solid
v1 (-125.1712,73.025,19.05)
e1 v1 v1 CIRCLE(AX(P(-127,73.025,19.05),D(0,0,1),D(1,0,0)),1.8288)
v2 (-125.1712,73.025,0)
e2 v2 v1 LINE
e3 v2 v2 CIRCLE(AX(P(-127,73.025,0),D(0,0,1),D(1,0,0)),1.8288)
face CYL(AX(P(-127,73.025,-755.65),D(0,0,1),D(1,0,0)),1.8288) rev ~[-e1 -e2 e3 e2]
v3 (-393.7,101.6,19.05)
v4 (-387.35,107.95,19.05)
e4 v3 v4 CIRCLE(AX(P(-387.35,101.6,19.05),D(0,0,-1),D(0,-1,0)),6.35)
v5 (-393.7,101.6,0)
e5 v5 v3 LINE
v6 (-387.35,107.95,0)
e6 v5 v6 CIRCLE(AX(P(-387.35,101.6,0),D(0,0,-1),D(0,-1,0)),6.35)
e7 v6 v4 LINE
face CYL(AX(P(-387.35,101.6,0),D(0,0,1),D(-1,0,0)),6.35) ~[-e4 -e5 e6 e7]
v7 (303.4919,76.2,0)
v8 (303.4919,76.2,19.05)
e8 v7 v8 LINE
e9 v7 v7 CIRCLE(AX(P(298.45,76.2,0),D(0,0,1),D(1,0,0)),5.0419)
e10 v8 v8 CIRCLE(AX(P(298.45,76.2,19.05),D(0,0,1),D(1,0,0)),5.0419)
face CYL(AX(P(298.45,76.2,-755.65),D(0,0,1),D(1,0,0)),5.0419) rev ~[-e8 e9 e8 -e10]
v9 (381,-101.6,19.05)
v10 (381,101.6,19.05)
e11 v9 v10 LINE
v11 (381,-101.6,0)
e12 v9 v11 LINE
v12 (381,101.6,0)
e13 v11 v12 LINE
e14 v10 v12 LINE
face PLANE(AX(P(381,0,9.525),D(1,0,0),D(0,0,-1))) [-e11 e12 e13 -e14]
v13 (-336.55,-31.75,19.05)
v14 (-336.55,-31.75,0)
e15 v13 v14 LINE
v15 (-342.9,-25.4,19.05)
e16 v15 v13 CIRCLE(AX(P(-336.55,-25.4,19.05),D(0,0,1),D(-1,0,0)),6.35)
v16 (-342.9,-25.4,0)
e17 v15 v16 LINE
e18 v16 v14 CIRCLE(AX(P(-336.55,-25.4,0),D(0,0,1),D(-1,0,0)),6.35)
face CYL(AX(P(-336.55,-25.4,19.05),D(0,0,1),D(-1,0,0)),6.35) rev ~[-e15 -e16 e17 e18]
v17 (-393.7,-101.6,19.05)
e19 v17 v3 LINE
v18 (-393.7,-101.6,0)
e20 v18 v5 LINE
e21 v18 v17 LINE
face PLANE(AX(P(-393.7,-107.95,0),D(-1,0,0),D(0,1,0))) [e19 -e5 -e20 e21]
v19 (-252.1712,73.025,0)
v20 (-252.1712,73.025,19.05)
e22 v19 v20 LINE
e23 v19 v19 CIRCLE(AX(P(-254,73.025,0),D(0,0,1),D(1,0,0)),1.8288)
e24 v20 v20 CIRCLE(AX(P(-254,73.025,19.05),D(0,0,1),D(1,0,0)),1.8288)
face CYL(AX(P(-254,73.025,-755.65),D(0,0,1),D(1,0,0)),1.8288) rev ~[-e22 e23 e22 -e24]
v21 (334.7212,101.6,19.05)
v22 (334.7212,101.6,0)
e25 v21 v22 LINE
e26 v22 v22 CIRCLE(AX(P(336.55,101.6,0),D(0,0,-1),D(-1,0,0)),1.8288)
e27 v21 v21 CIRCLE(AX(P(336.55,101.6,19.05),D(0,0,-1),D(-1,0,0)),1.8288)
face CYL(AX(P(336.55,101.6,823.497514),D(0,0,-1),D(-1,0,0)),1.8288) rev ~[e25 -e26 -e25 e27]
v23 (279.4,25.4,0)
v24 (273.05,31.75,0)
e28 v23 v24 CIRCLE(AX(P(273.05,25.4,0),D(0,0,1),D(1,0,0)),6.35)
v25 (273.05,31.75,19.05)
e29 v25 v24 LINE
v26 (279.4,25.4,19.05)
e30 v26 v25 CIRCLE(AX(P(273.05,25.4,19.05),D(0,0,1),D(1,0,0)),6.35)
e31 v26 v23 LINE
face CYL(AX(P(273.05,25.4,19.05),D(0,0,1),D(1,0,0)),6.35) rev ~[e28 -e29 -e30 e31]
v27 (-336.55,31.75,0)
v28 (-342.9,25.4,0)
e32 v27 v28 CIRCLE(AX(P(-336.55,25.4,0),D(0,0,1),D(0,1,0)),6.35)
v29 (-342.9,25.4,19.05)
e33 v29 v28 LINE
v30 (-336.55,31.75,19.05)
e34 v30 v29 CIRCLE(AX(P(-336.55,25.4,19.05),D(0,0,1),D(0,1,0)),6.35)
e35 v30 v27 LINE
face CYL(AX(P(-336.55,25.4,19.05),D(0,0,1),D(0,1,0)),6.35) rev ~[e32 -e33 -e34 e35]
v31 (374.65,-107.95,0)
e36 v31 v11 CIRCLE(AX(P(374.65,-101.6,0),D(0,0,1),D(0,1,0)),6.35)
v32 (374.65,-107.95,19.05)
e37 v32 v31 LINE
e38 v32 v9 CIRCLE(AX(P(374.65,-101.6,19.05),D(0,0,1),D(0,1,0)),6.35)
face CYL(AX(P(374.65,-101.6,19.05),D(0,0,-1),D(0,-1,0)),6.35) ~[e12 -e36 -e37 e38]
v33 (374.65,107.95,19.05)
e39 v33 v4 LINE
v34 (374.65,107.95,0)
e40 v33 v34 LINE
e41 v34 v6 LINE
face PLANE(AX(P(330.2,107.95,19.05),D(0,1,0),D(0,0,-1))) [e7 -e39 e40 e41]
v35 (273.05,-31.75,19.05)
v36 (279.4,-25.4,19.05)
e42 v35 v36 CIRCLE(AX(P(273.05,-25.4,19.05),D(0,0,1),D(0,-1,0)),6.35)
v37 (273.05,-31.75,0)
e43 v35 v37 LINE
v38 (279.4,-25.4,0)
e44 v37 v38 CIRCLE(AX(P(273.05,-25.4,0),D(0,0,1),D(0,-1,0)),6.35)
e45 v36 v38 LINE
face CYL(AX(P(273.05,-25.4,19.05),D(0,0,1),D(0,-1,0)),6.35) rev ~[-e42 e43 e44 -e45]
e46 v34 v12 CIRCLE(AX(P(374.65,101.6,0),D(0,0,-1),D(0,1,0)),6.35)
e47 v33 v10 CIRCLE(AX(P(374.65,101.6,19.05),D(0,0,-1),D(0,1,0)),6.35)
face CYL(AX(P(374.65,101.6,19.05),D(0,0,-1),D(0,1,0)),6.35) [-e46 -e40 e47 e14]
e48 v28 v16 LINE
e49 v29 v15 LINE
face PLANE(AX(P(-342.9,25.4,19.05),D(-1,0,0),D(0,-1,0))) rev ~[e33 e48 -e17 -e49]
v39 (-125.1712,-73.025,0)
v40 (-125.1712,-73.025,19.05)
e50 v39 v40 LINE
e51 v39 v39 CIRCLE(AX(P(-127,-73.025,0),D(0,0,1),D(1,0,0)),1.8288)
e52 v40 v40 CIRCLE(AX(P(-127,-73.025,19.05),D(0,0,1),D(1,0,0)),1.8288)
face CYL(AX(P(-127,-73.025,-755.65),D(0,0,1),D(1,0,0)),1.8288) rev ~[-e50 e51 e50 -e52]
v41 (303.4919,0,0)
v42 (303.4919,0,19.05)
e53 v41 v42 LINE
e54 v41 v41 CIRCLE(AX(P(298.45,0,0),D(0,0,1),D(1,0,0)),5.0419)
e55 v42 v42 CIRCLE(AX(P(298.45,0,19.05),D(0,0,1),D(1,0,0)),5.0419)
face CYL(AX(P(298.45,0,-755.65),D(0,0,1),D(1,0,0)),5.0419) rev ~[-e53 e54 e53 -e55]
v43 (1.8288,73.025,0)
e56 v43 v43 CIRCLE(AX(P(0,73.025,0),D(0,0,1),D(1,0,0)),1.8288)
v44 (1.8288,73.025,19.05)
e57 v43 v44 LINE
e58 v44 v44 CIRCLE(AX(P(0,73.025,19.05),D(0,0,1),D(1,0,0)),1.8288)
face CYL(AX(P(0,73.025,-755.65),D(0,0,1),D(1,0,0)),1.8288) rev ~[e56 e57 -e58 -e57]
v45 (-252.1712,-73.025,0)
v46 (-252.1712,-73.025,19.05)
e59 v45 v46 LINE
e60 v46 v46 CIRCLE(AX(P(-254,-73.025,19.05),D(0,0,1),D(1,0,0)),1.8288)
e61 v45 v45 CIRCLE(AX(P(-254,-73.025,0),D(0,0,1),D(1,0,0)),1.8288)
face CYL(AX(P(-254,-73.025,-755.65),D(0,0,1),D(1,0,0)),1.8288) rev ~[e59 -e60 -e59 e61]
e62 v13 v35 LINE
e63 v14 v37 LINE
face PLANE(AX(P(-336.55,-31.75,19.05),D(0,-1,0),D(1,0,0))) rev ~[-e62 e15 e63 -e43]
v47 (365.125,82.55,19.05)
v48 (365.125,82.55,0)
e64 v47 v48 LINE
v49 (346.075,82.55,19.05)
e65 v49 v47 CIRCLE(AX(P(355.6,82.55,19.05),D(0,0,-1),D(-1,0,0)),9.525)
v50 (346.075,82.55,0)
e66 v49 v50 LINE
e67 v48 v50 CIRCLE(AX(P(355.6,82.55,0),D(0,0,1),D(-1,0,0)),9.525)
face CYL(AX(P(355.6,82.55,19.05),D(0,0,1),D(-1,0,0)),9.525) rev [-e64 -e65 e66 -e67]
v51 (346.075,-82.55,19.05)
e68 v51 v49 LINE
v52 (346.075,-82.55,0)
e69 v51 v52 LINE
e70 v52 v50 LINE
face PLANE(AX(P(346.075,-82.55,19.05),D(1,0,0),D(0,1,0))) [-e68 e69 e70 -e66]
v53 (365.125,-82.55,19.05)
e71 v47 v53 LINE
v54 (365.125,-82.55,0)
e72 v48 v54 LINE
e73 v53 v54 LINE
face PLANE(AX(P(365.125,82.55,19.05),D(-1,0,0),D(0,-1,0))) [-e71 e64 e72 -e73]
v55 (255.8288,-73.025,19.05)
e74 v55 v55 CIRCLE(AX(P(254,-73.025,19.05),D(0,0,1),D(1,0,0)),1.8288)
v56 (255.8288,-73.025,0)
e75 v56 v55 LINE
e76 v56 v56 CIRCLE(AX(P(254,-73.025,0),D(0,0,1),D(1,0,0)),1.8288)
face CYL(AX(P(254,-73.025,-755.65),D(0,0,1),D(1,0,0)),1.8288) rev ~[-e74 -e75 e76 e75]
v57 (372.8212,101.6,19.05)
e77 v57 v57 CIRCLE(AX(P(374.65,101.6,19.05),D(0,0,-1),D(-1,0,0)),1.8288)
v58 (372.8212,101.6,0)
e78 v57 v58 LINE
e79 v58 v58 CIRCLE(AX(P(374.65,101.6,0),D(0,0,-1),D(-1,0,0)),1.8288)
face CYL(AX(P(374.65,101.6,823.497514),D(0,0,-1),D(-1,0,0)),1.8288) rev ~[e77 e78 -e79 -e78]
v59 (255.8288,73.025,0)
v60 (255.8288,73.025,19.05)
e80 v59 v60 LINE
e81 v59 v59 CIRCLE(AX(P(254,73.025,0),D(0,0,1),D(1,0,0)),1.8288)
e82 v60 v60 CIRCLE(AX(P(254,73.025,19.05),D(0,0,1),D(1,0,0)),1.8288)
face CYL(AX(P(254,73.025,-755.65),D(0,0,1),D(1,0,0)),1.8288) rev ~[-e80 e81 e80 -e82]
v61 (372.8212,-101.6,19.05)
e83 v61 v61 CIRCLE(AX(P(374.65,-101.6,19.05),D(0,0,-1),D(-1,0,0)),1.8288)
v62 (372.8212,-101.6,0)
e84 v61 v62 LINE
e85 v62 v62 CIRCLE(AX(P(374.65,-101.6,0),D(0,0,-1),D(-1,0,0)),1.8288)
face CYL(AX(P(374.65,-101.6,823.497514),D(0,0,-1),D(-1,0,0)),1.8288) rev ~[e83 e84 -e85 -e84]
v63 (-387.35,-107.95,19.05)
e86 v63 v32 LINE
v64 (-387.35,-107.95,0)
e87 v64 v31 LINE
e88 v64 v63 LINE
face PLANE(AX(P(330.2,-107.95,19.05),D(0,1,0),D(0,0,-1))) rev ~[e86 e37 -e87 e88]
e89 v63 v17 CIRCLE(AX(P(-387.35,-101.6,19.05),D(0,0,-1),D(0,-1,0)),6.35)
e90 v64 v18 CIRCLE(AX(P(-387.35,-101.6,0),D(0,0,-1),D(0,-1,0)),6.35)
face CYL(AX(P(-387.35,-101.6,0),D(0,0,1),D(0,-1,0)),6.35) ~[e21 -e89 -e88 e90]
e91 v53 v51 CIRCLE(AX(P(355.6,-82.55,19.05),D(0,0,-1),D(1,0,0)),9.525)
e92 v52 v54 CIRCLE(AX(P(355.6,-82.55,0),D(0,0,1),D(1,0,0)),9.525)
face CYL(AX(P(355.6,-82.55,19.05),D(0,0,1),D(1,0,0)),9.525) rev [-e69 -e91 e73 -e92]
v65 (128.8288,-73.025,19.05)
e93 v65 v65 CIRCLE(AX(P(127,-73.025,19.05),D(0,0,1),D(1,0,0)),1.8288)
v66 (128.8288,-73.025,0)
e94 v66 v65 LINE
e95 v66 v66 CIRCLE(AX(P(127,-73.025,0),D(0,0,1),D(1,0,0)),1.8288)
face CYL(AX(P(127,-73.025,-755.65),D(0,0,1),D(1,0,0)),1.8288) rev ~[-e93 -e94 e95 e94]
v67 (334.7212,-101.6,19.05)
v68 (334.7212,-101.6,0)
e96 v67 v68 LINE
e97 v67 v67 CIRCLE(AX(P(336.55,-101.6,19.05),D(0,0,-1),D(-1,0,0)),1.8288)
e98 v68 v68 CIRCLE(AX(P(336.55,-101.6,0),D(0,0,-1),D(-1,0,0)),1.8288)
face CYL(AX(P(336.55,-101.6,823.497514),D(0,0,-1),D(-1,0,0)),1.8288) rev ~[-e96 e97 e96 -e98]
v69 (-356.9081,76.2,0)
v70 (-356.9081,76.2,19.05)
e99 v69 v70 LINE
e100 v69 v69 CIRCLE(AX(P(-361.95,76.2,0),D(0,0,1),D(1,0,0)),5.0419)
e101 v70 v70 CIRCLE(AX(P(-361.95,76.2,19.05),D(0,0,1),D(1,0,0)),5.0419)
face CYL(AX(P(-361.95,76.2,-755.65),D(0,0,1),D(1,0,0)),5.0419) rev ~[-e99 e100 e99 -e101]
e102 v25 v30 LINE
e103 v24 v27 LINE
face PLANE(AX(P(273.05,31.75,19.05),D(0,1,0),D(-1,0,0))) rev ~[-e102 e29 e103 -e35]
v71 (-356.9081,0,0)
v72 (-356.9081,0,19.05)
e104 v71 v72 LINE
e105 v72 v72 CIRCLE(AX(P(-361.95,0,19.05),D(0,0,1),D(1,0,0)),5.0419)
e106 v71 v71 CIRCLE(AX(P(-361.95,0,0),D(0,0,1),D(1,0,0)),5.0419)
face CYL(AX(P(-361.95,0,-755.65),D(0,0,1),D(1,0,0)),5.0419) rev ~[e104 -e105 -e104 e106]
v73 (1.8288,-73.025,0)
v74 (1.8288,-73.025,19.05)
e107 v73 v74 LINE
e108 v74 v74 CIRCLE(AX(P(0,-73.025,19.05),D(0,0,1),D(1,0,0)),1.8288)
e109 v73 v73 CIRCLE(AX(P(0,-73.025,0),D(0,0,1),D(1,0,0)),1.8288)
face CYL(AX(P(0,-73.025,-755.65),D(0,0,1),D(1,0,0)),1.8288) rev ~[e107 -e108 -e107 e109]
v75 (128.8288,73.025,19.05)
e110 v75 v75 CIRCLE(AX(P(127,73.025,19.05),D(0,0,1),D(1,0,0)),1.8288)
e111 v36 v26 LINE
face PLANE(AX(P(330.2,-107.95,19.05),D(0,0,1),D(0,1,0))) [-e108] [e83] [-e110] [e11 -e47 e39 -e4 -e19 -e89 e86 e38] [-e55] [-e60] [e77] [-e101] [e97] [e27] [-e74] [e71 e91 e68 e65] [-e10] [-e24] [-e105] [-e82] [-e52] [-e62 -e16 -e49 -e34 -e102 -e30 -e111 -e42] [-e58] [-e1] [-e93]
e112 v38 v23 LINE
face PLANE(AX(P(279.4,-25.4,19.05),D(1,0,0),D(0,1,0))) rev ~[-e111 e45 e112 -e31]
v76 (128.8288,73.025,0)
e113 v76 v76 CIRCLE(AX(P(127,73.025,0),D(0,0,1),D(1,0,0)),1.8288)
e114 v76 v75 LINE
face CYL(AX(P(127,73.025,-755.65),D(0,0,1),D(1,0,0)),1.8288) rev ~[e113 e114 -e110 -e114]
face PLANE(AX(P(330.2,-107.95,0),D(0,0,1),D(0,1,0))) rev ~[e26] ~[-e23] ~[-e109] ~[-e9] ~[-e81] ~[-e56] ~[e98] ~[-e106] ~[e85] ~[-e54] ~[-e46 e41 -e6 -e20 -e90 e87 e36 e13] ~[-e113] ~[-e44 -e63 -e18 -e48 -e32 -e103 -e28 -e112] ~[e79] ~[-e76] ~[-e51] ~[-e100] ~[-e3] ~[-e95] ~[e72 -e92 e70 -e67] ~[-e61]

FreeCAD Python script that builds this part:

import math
import FreeCAD as App
import Part
import Sketcher
Q = App.Units.Quantity


def edges_at(feature, points):
    """Names of the edges that pass closest to the given points."""
    edges = feature.Shape.Edges
    near = lambda p: min(range(len(edges)), key=lambda i: edges[i].distToShape(Part.Vertex(*p))[0])
    return sorted({f"Edge{near(p) + 1}" for p in points})


def add_polygon(sketch, points):
    """Adds a closed chain of lines whose ends are joined by coincident constraints."""
    first, n = sketch.GeometryCount, len(points)
    for a, b in zip(points, points[1:] + points[:1]):
        sketch.addGeometry(Part.LineSegment(App.Vector(*a, 0), App.Vector(*b, 0)), False)
    for i in range(n):
        sketch.addConstraint(Sketcher.Constraint("Coincident", first + i, 2, first + (i + 1) % n, 1))

doc = App.newDocument("Part")
body = doc.addObject("PartDesign::Body", "Body")

# Sketch on XY plane
sketch1 = doc.addObject("Sketcher::SketchObject", "Sketch")
body.addObject(sketch1)
sketch1.AttachmentSupport = (doc.XY_Plane, [""])
sketch1.MapMode = "FlatFace"
add_polygon(sketch1, [(-393.7, 107.95), (-393.7, -107.95), (330.2, -107.95), (330.2, 107.95)])  # lines 0-3
sketch1.addConstraint([
    Sketcher.Constraint("Vertical", 0),
    Sketcher.Constraint("Horizontal", 1),
    Sketcher.Constraint("Vertical", 2),
    Sketcher.Constraint("Horizontal", 3),
    Sketcher.Constraint("DistanceX", 1, 1, 1, 2, Q("28.5 in")),
    Sketcher.Constraint("DistanceY", 0, 2, 0, 1, Q("8.5 in")),
    Sketcher.Constraint("DistanceX", -1, 1, 1, 2, Q("13 in")),
    Sketcher.Constraint("DistanceY", 0, 2, -1, 1, Q("4.25 in")),
])
pad1 = doc.addObject("PartDesign::Pad", "Pad")
body.addObject(pad1)
pad1.Profile = sketch1
pad1.Length = Q("0.75 in")

# Sketch on XY plane
sketch2 = doc.addObject("Sketcher::SketchObject", "Sketch001")
body.addObject(sketch2)
sketch2.AttachmentSupport = (doc.XY_Plane, [""])
sketch2.MapMode = "FlatFace"
sketch2.AttachmentOffset = App.Placement(App.Vector(0, 0, 0.75 * 25.4), App.Rotation())
sketch2.addGeometry([
    Part.LineSegment(App.Vector(-336.55, -31.75, 0), App.Vector(273.05, -31.75, 0)),  # 0
    Part.ArcOfCircle(Part.Circle(App.Vector(273.05, -25.4, 0), App.Vector(0, 0, 1), 6.35), math.radians(-90), math.radians(0)),  # 1
    Part.LineSegment(App.Vector(279.4, -25.4, 0), App.Vector(279.4, 25.4, 0)),  # 2
    Part.ArcOfCircle(Part.Circle(App.Vector(273.05, 25.4, 0), App.Vector(0, 0, 1), 6.35), math.radians(0), math.radians(90)),  # 3
    Part.LineSegment(App.Vector(273.05, 31.75, 0), App.Vector(-336.55, 31.75, 0)),  # 4
    Part.ArcOfCircle(Part.Circle(App.Vector(-336.55, 25.4, 0), App.Vector(0, 0, 1), 6.35), math.radians(90), math.radians(180)),  # 5
    Part.LineSegment(App.Vector(-342.9, 25.4, 0), App.Vector(-342.9, -25.4, 0)),  # 6
    Part.ArcOfCircle(Part.Circle(App.Vector(-336.55, -25.4, 0), App.Vector(0, 0, 1), 6.35), math.radians(180), math.radians(270)),  # 7
], False)
sketch2.addConstraint([
    Sketcher.Constraint("Tangent", 0, 2, 1, 1),
    Sketcher.Constraint("Tangent", 1, 2, 2, 1),
    Sketcher.Constraint("Tangent", 2, 2, 3, 1),
    Sketcher.Constraint("Tangent", 3, 2, 4, 1),
    Sketcher.Constraint("Tangent", 4, 2, 5, 1),
    Sketcher.Constraint("Tangent", 5, 2, 6, 1),
    Sketcher.Constraint("Tangent", 6, 2, 7, 1),
    Sketcher.Constraint("Tangent", 7, 2, 0, 1),
    Sketcher.Constraint("Horizontal", 0),
    Sketcher.Constraint("Vertical", 2),
    Sketcher.Constraint("Horizontal", 4),
    Sketcher.Constraint("Vertical", 6),
    Sketcher.Constraint("Equal", 1, 3),
    Sketcher.Constraint("Equal", 3, 5),
    Sketcher.Constraint("Equal", 5, 7),
    Sketcher.Constraint("DistanceX", 0, 1, 0, 2, Q("24 in")),
    Sketcher.Constraint("DistanceY", 2, 1, 2, 2, Q("2 in")),
    Sketcher.Constraint("Radius", 1, Q("0.25 in")),
    Sketcher.Constraint("DistanceY", 1, 3, -1, 1, Q("1 in")),
    Sketcher.Constraint("DistanceX", -1, 1, 1, 2, Q("11 in")),
])
pocket1 = doc.addObject("PartDesign::Pocket", "Pocket")
body.addObject(pocket1)
pocket1.Profile = sketch2
pocket1.Type = "ThroughAll"

# Sketch on XY plane
sketch3 = doc.addObject("Sketcher::SketchObject", "Sketch002")
body.addObject(sketch3)
sketch3.AttachmentSupport = (doc.XY_Plane, [""])
sketch3.MapMode = "FlatFace"
sketch3.addGeometry([
    Part.Circle(App.Vector(0, 0, 0), App.Vector(0, 0, 1), 1.8288),  # 0
    Part.Circle(App.Vector(254, 73.025, 0), App.Vector(0, 0, 1), 1.8288),  # 1
    Part.Circle(App.Vector(127, 73.025, 0), App.Vector(0, 0, 1), 1.8288),  # 2
    Part.Circle(App.Vector(0, 73.025, 0), App.Vector(0, 0, 1), 1.8288),  # 3
    Part.Circle(App.Vector(-127, 73.025, 0), App.Vector(0, 0, 1), 1.8288),  # 4
    Part.Circle(App.Vector(-254, 73.025, 0), App.Vector(0, 0, 1), 1.8288),  # 5
    Part.Circle(App.Vector(127, -73.025, 0), App.Vector(0, 0, 1), 1.8288),  # 6
    Part.Circle(App.Vector(0, -73.025, 0), App.Vector(0, 0, 1), 1.8288),  # 7
    Part.Circle(App.Vector(-127, -73.025, 0), App.Vector(0, 0, 1), 1.8288),  # 8
    Part.Circle(App.Vector(-254, -73.025, 0), App.Vector(0, 0, 1), 1.8288),  # 9
    Part.Circle(App.Vector(254, -73.025, 0), App.Vector(0, 0, 1), 1.8288),  # 10
], False)
sketch3.addConstraint([
    Sketcher.Constraint("Coincident", 0, 3, -1, 1),
    Sketcher.Constraint("Equal", 0, 1),
    Sketcher.Constraint("Equal", 1, 2),
    Sketcher.Constraint("Equal", 2, 3),
    Sketcher.Constraint("Equal", 3, 4),
    Sketcher.Constraint("Equal", 4, 5),
    Sketcher.Constraint("Equal", 5, 6),
    Sketcher.Constraint("Equal", 6, 7),
    Sketcher.Constraint("Equal", 7, 8),
    Sketcher.Constraint("Equal", 8, 9),
    Sketcher.Constraint("Equal", 9, 10),
    Sketcher.Constraint("Symmetric", 4, 3, 6, 3, -1, 1),
    Sketcher.Constraint("Symmetric", 3, 3, 7, 3, -1, 1),
    Sketcher.Constraint("Symmetric", 2, 3, 8, 3, -1, 1),
    Sketcher.Constraint("Symmetric", 1, 3, 9, 3, -1, 1),
    Sketcher.Constraint("Symmetric", 5, 3, 10, 3, -1, 1),
    Sketcher.Constraint("Symmetric", 2, 3, 4, 3, -2),
    Sketcher.Constraint("Symmetric", 1, 3, 5, 3, -2),
    Sketcher.Constraint("PointOnObject", 3, 3, -2),
    Sketcher.Constraint("Horizontal", 1, 3, 2, 3),
    Sketcher.Constraint("Horizontal", 2, 3, 3, 3),
    Sketcher.Constraint("Diameter", 0, Q("0.144 in")),
    Sketcher.Constraint("DistanceX", -1, 1, 1, 3, Q("10 in")),
    Sketcher.Constraint("DistanceX", -1, 1, 2, 3, Q("5 in")),
    Sketcher.Constraint("DistanceY", 6, 3, 2, 3, Q("5.75 in")),
])
doc.recompute()
hole = doc.addObject("PartDesign::Hole", "Hole")
body.addObject(hole)
hole.Profile = sketch3
hole.ThreadType = "None"
hole.Diameter = Q("0.144 in")
hole.DepthType = "ThroughAll"
hole.Reversed = True

# Sketch on XY plane
sketch4 = doc.addObject("Sketcher::SketchObject", "Sketch003")
body.addObject(sketch4)
sketch4.AttachmentSupport = (doc.XY_Plane, [""])
sketch4.MapMode = "FlatFace"
sketch4.addGeometry([
    Part.Circle(App.Vector(298.45, 76.2, 0), App.Vector(0, 0, 1), 5.0419),
    Part.Circle(App.Vector(-361.95, 76.2, 0), App.Vector(0, 0, 1), 5.0419),
    Part.Circle(App.Vector(-361.95, 0, 0), App.Vector(0, 0, 1), 5.0419),
    Part.Circle(App.Vector(298.45, 0, 0), App.Vector(0, 0, 1), 5.0419),
], False)
sketch4.addConstraint([
    Sketcher.Constraint("Equal", 0, 1),
    Sketcher.Constraint("Equal", 1, 2),
    Sketcher.Constraint("Equal", 2, 3),
    Sketcher.Constraint("PointOnObject", 2, 3, -1),
    Sketcher.Constraint("PointOnObject", 3, 3, -1),
    Sketcher.Constraint("Horizontal", 0, 3, 1, 3),
    Sketcher.Constraint("Vertical", 1, 3, 2, 3),
    Sketcher.Constraint("Vertical", 0, 3, 3, 3),
    Sketcher.Constraint("Diameter", 0, Q("0.397 in")),
    Sketcher.Constraint("DistanceY", -1, 1, 0, 3, Q("3 in")),
    Sketcher.Constraint("DistanceX", 1, 3, 0, 3, Q("26 in")),
    Sketcher.Constraint("DistanceX", -1, 1, 0, 3, Q("11.75 in")),
])
doc.recompute()
hole2 = doc.addObject("PartDesign::Hole", "Hole001")
body.addObject(hole2)
hole2.Profile = sketch4
hole2.ThreadType = "None"
hole2.Diameter = Q("0.397 in")
hole2.DepthType = "ThroughAll"
hole2.Reversed = True

# Sketch on YZ plane
sketch5 = doc.addObject("Sketcher::SketchObject", "Sketch004")
body.addObject(sketch5)
sketch5.AttachmentSupport = (doc.YZ_Plane, [""])
sketch5.MapMode = "FlatFace"
sketch5.AttachmentOffset = App.Placement(App.Vector(0, 0, 13 * 25.4), App.Rotation())
add_polygon(sketch5, [(107.95, 19.05), (-107.95, 19.05), (-107.95, 0), (107.95, 0)])  # lines 0-3
sketch5.addConstraint([
    Sketcher.Constraint("Horizontal", 0),
    Sketcher.Constraint("Vertical", 1),
    Sketcher.Constraint("Horizontal", 2),
    Sketcher.Constraint("Vertical", 3),
    Sketcher.Constraint("Symmetric", 1, 2, 2, 2, -1, 1),
    Sketcher.Constraint("DistanceX", 0, 2, 0, 1, Q("8.5 in")),
    Sketcher.Constraint("DistanceY", 1, 2, 1, 1, Q("0.75 in")),
])
pad2 = doc.addObject("PartDesign::Pad", "Pad001")
body.addObject(pad2)
pad2.Profile = sketch5
pad2.Length = Q("2 in")
doc.recompute()

fillet = doc.addObject("PartDesign::Fillet", "Fillet")
body.addObject(fillet)
fillet.Base = (pad2, edges_at(pad2, [
    (381, -107.95, 9.525),
    (381, 107.95, 9.525),
    (-393.7, 107.95, 9.525),
    (-393.7, -107.95, 9.525),
]))
fillet.Radius = Q("0.25 in")

# Sketch on XY plane
sketch6 = doc.addObject("Sketcher::SketchObject", "Sketch005")
body.addObject(sketch6)
sketch6.AttachmentSupport = (doc.XY_Plane, [""])
sketch6.MapMode = "FlatFace"
sketch6.AttachmentOffset = App.Placement(App.Vector(0, 0, 0.75 * 25.4), App.Rotation())
sketch6.addGeometry([
    Part.Circle(App.Vector(336.55, -101.6, 0), App.Vector(0, 0, 1), 1.8288),  # 0
    Part.Circle(App.Vector(355.6, 0, 0), App.Vector(0, 0, 1), 1.8288),  # 1
    Part.Circle(App.Vector(336.55, 101.6, 0), App.Vector(0, 0, 1), 1.8288),  # 2
    Part.Circle(App.Vector(374.65, -101.6, 0), App.Vector(0, 0, 1), 1.8288),  # 3
    Part.Circle(App.Vector(374.65, 101.6, 0), App.Vector(0, 0, 1), 1.8288),  # 4
], False)
sketch6.addConstraint([
    Sketcher.Constraint("Equal", 0, 1),
    Sketcher.Constraint("Equal", 1, 2),
    Sketcher.Constraint("Equal", 2, 3),
    Sketcher.Constraint("Equal", 3, 4),
    Sketcher.Constraint("Symmetric", 0, 3, 2, 3, -1),
    Sketcher.Constraint("Symmetric", 3, 3, 4, 3, -1),
    Sketcher.Constraint("PointOnObject", 1, 3, -1),
    Sketcher.Constraint("Horizontal", 0, 3, 3, 3),
    Sketcher.Constraint("Diameter", 0, Q("0.144 in")),
    Sketcher.Constraint("DistanceY", 0, 3, -1, 1, Q("4 in")),
    Sketcher.Constraint("DistanceX", -1, 1, 1, 3, Q("14 in")),
    Sketcher.Constraint("DistanceX", 0, 3, 3, 3, Q("1.5 in")),
    Sketcher.Constraint("DistanceX", -1, 1, 0, 3, Q("13.25 in")),
])
doc.recompute()
hole3 = doc.addObject("PartDesign::Hole", "Hole002")
body.addObject(hole3)
hole3.Profile = sketch6
hole3.ThreadType = "None"
hole3.Diameter = Q("0.144 in")
hole3.DepthType = "ThroughAll"

# Sketch on XY plane
sketch7 = doc.addObject("Sketcher::SketchObject", "Sketch006")
body.addObject(sketch7)
sketch7.AttachmentSupport = (doc.XY_Plane, [""])
sketch7.MapMode = "FlatFace"
sketch7.AttachmentOffset = App.Placement(App.Vector(0, 0, 0.75 * 25.4), App.Rotation())
sketch7.addGeometry([
    Part.LineSegment(App.Vector(346.075, 82.55, 0), App.Vector(346.075, -82.55, 0)),
    Part.ArcOfCircle(Part.Circle(App.Vector(355.6, -82.55, 0), App.Vector(0, 0, 1), 9.525), math.radians(180), math.radians(360)),
    Part.LineSegment(App.Vector(365.125, -82.55, 0), App.Vector(365.125, 82.55, 0)),
    Part.ArcOfCircle(Part.Circle(App.Vector(355.6, 82.55, 0), App.Vector(0, 0, 1), 9.525), math.radians(0), math.radians(180)),
], False)
sketch7.addConstraint([
    Sketcher.Constraint("Tangent", 0, 2, 1, 1),
    Sketcher.Constraint("Tangent", 1, 2, 2, 1),
    Sketcher.Constraint("Tangent", 2, 2, 3, 1),
    Sketcher.Constraint("Tangent", 3, 2, 0, 1),
    Sketcher.Constraint("Vertical", 0),
    Sketcher.Constraint("Vertical", 2),
    Sketcher.Constraint("DistanceY", 0, 2, 0, 1, Q("6.5 in")),
    Sketcher.Constraint("DistanceX", -1, 1, 1, 3, Q("14 in")),
    Sketcher.Constraint("Radius", 1, Q("0.375 in")),
    Sketcher.Constraint("DistanceY", 1, 3, -1, 1, Q("3.25 in")),
])
pocket2 = doc.addObject("PartDesign::Pocket", "Pocket001")
body.addObject(pocket2)
pocket2.Profile = sketch7
pocket2.Length = Q("3 in")

doc.recompute()
